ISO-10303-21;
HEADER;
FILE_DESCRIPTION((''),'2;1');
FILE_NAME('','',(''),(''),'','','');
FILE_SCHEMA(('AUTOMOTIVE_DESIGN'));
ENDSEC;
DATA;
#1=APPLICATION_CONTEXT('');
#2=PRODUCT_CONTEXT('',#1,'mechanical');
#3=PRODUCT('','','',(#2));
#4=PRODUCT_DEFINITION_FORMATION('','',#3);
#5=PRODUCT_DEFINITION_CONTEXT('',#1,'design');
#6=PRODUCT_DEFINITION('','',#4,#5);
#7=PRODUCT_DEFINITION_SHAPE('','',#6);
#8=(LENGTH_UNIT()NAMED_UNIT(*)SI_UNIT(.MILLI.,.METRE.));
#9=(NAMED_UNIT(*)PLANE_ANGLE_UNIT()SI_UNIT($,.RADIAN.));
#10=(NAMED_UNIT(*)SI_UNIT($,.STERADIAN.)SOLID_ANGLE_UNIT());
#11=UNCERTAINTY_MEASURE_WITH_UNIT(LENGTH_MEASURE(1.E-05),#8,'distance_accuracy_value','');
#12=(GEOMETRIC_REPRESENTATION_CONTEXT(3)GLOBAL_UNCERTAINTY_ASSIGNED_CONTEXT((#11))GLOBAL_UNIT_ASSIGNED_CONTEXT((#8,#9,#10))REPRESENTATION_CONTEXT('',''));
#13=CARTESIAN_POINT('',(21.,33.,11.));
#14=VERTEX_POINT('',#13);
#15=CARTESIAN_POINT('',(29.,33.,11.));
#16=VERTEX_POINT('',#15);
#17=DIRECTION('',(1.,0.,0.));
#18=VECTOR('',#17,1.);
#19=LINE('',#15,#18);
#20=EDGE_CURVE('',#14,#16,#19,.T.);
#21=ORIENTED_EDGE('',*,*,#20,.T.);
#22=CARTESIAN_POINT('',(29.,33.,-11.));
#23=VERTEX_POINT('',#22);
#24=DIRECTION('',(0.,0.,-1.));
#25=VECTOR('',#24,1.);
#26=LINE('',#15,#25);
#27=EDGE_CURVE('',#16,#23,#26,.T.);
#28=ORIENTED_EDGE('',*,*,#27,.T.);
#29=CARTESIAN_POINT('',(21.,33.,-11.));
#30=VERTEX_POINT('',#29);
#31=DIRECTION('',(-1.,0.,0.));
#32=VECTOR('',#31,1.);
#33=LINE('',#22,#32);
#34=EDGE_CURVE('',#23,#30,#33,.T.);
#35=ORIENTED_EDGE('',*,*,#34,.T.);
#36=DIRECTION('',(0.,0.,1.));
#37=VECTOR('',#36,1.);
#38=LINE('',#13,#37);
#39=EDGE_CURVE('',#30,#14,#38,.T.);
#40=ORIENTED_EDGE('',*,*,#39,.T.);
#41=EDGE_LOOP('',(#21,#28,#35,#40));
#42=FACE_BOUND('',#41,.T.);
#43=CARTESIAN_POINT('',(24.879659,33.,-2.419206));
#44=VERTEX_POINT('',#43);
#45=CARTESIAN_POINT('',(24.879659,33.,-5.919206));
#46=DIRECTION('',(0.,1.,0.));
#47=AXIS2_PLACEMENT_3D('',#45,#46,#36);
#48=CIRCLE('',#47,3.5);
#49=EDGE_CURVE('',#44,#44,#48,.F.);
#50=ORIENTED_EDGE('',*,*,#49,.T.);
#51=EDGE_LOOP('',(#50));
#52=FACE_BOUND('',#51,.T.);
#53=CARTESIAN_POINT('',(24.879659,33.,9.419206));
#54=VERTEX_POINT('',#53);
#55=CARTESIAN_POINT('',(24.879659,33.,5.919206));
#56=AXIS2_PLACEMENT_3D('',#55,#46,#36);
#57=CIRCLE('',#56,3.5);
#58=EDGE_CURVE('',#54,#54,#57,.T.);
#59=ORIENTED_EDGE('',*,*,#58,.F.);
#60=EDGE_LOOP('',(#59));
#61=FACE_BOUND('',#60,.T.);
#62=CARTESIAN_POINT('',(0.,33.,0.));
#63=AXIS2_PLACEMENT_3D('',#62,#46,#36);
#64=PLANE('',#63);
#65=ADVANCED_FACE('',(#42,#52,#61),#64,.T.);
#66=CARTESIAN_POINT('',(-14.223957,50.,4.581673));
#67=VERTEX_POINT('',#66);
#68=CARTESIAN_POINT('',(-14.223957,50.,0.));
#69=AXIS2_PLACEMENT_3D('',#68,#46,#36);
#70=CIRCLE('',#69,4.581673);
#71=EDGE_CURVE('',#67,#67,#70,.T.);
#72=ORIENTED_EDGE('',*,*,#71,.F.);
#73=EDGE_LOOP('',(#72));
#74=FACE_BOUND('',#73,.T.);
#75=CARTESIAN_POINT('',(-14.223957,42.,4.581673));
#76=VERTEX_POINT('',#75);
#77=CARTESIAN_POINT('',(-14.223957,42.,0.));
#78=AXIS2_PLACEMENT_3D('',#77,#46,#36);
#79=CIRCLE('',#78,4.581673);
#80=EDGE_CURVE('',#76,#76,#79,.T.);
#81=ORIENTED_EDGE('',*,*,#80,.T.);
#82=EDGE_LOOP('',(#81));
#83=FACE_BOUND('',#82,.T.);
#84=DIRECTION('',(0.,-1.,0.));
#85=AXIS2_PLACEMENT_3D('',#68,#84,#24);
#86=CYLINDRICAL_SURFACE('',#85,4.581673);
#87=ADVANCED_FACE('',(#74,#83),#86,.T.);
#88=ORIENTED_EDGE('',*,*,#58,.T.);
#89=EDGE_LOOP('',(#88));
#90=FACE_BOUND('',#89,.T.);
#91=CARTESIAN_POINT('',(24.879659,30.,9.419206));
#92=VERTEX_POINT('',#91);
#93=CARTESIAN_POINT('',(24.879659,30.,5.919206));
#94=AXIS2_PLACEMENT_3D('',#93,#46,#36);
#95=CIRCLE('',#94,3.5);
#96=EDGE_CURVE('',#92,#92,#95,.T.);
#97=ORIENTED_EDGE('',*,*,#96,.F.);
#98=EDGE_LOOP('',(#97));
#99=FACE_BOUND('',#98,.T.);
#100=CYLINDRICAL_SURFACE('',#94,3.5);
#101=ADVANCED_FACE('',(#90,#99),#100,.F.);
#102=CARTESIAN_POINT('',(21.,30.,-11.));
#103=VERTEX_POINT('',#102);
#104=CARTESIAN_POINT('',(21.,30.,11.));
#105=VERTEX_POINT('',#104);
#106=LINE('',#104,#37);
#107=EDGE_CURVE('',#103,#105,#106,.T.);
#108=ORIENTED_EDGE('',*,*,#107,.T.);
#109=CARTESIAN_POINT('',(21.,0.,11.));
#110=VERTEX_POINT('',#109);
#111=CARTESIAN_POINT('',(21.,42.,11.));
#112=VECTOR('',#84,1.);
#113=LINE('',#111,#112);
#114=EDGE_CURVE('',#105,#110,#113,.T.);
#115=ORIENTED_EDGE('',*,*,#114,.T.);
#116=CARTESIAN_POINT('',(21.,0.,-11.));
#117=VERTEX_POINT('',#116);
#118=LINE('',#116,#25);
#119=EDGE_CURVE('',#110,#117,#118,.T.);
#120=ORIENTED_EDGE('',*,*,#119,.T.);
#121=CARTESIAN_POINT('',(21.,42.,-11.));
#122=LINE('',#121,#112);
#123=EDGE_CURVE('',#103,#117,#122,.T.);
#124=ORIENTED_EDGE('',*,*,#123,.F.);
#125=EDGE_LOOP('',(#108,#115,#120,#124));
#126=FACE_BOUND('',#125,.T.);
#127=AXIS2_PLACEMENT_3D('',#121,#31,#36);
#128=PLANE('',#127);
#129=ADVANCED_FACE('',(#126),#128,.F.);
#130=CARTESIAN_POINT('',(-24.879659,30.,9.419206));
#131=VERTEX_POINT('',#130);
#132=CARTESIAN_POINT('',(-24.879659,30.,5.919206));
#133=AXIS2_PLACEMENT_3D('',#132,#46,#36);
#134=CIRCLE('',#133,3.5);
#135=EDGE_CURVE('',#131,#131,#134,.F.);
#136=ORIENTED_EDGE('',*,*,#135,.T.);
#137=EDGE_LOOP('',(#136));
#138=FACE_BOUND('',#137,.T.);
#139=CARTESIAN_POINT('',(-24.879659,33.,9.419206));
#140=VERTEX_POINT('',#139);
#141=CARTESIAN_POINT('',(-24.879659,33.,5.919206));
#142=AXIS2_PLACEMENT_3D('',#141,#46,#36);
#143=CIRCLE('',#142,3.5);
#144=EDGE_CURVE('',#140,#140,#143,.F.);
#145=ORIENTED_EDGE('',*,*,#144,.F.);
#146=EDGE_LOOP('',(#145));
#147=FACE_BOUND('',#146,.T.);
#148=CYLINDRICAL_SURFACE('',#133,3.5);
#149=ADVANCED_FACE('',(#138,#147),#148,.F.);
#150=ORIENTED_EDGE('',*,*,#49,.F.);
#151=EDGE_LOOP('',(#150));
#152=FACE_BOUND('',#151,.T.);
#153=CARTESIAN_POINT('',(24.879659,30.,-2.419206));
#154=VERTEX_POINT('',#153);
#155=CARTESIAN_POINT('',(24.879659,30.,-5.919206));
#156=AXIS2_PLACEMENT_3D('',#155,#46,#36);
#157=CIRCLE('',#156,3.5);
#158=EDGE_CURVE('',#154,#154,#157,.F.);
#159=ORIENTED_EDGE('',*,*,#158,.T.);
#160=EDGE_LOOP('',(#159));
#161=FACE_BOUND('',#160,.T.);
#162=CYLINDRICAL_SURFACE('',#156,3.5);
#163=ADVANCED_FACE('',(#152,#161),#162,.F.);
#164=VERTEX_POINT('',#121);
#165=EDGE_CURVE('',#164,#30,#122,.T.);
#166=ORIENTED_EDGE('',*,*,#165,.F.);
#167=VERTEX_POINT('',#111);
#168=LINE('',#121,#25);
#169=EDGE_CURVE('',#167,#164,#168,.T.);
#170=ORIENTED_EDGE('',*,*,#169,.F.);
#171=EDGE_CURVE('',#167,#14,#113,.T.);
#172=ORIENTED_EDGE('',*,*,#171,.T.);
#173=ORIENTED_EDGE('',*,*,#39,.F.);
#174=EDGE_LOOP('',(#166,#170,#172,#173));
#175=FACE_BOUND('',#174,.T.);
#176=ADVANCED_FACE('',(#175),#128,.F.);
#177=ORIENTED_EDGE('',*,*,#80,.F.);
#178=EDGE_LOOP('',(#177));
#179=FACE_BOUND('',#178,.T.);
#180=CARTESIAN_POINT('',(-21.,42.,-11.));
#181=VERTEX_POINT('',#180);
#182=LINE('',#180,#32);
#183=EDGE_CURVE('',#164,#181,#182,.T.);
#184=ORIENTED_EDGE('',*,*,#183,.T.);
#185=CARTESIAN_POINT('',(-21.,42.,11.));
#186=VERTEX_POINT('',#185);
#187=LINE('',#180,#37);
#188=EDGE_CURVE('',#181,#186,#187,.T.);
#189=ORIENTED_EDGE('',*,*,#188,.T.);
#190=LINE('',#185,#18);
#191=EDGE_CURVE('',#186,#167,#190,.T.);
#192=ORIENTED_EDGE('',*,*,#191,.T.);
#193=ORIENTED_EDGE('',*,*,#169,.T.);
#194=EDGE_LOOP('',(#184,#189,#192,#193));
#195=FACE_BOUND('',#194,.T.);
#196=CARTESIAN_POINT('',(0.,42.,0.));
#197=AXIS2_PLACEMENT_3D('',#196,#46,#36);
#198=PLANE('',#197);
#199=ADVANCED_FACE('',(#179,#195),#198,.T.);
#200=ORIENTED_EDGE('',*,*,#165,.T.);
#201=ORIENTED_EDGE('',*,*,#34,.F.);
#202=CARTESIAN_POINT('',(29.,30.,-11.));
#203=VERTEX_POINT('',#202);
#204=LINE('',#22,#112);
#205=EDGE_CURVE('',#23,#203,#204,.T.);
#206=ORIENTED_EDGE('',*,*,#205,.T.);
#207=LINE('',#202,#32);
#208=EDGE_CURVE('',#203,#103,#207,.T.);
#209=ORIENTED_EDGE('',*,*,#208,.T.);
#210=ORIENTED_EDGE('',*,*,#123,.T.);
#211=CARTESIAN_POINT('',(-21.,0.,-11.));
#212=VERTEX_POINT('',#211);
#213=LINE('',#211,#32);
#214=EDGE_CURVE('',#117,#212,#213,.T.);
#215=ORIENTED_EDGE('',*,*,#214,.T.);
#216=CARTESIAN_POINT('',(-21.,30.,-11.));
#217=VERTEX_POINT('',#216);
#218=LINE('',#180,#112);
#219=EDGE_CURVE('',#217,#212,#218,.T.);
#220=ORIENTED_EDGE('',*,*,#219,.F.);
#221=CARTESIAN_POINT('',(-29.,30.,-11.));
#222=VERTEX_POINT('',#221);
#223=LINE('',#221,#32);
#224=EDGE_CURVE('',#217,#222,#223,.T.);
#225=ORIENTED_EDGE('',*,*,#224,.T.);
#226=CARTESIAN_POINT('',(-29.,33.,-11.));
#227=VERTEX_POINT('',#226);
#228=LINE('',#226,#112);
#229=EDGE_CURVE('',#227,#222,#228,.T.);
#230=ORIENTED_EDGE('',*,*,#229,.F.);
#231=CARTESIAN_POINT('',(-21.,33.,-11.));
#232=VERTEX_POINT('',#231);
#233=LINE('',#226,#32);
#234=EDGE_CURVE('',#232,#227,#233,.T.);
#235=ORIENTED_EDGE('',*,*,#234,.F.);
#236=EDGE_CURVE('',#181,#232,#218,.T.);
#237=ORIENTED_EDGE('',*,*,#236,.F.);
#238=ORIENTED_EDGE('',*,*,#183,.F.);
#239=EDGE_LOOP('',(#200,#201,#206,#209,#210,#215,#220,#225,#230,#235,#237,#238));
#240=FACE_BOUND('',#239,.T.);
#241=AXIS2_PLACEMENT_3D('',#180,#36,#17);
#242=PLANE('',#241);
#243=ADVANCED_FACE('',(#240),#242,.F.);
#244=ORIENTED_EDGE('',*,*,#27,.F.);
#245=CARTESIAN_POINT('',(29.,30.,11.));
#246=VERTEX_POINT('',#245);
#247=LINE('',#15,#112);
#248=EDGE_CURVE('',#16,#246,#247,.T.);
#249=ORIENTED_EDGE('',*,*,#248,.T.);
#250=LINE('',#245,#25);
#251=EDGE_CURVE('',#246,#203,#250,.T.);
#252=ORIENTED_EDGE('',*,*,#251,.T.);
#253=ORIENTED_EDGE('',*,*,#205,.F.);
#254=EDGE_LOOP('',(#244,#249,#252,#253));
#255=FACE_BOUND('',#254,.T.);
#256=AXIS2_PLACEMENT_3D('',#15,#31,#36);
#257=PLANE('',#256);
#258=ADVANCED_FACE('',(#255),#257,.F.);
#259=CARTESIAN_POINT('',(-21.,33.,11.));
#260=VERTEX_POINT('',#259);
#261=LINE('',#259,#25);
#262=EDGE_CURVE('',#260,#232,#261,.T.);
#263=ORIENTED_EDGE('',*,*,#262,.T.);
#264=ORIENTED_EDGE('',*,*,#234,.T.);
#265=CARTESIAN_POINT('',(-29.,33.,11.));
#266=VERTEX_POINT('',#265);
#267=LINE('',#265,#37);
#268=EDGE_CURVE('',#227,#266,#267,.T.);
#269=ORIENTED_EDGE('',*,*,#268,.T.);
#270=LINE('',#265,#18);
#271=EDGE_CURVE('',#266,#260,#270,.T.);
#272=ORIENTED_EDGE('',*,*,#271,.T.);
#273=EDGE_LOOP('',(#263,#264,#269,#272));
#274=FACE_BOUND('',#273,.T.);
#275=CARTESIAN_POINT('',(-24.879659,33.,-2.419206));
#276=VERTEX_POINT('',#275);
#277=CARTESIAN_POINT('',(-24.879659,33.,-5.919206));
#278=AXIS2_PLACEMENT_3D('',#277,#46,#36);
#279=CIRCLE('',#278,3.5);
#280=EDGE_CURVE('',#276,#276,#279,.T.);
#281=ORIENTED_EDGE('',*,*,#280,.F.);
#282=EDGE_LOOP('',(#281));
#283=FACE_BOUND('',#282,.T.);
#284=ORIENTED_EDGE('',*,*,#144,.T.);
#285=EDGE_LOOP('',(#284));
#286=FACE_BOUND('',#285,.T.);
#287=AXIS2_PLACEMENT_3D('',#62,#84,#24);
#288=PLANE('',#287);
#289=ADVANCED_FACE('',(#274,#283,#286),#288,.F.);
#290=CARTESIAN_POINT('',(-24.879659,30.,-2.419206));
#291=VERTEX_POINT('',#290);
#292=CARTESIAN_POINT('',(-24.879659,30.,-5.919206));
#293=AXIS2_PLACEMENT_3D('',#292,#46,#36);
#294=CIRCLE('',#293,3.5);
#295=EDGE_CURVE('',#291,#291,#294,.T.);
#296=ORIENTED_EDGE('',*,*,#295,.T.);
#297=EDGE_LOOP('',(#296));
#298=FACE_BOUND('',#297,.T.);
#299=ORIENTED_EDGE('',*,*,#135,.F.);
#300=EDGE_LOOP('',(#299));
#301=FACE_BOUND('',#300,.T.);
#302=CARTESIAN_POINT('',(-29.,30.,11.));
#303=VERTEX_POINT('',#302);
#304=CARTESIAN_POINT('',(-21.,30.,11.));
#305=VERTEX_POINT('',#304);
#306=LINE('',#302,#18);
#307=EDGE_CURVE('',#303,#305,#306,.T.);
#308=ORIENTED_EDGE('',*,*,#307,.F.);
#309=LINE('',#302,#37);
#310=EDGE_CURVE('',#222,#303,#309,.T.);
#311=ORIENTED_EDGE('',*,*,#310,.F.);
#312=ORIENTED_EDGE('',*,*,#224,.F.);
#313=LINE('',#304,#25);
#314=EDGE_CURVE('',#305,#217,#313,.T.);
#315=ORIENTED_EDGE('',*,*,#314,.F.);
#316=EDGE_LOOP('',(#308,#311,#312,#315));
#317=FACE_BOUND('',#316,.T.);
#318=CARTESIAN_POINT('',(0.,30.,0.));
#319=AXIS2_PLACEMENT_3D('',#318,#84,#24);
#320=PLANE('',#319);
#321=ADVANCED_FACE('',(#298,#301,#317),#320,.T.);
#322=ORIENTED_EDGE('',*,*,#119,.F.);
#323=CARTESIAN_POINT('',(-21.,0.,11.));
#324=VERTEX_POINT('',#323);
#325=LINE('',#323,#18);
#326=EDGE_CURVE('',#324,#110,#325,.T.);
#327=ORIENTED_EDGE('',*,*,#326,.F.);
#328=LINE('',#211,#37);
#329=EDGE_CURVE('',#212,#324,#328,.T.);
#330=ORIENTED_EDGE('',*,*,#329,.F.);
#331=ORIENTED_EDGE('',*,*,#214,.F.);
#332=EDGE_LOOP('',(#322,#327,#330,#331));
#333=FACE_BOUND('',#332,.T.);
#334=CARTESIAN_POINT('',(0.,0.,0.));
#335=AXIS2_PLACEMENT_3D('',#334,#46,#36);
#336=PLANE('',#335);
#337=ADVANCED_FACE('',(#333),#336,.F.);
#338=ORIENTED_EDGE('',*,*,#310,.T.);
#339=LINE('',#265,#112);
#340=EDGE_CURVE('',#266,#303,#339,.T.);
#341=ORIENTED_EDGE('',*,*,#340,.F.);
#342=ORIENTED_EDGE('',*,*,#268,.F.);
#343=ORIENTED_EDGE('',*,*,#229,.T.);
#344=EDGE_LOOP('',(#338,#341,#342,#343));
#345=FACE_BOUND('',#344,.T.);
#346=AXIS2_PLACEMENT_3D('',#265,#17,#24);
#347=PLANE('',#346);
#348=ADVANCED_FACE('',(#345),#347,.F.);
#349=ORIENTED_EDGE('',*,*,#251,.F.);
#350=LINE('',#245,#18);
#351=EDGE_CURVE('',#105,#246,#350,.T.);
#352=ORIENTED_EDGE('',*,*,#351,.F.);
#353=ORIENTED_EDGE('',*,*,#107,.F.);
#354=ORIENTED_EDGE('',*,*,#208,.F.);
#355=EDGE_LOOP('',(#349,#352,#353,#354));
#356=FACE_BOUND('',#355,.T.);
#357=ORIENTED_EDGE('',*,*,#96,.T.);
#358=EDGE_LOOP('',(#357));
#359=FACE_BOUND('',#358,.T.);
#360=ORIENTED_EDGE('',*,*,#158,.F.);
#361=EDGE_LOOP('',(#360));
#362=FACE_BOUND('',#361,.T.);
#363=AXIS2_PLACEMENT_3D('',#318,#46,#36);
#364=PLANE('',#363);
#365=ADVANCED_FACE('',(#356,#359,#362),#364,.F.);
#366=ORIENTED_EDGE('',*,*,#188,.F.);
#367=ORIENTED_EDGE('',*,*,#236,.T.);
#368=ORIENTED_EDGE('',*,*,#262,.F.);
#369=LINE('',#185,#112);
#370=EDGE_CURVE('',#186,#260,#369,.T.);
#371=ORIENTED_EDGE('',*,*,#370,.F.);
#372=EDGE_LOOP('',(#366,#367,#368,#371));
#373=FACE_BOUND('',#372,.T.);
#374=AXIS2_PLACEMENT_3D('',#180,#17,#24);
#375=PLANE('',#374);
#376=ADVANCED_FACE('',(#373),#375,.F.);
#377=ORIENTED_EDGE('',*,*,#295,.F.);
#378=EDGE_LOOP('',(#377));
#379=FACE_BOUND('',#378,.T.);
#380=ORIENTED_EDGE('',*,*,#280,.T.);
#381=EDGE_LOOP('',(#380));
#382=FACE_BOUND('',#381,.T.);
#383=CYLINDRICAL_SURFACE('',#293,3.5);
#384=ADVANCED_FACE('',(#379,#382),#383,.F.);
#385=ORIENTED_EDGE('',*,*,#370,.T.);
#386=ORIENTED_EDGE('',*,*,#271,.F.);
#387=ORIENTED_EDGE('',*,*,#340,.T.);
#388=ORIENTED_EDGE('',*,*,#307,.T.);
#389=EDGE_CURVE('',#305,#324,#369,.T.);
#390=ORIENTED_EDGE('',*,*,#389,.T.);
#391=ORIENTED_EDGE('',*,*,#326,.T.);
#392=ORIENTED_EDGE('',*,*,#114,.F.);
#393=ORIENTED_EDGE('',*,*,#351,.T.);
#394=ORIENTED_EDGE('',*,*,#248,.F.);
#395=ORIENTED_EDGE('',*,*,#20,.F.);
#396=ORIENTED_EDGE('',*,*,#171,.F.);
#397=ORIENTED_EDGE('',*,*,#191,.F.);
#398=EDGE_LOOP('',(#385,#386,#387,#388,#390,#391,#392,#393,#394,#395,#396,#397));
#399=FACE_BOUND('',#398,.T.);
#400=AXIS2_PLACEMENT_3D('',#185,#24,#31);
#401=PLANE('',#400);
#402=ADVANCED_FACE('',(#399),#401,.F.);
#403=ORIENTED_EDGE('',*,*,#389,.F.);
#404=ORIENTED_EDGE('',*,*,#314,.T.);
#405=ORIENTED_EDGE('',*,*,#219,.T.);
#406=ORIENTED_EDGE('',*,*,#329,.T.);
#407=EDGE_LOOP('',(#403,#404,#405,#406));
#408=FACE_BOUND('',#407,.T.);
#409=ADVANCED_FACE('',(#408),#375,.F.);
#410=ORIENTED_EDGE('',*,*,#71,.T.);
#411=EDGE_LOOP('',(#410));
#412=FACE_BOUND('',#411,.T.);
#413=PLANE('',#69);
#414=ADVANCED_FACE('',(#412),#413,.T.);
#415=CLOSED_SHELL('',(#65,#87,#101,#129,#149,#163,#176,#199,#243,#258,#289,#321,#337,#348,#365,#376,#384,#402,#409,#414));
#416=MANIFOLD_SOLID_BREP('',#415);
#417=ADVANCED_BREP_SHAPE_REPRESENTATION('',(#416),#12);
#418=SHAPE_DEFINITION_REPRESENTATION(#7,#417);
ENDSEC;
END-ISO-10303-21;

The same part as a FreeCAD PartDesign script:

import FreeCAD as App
import Part
import Sketcher

V = App.Vector

doc = App.newDocument("Part")
body = doc.addObject("PartDesign::Body", "Body")

# Sketch on XZ plane
sketch1 = body.newObject("Sketcher::SketchObject", "Sketch")
sketch1.AttachmentSupport = (doc.getObject("XZ_Plane"), [""])
sketch1.MapMode = "FlatFace"
sketch1.addGeometry([
    Part.LineSegment(V(-21, -11, 0), V(-21, 11, 0)),
    Part.LineSegment(V(-21, 11, 0), V(21, 11, 0)),
    Part.LineSegment(V(21, 11, 0), V(21, -11, 0)),
    Part.LineSegment(V(21, -11, 0), V(-21, -11, 0)),
], False)
sketch1.addConstraint([
    Sketcher.Constraint("Coincident", 0, 2, 1, 1),
    Sketcher.Constraint("Coincident", 1, 2, 2, 1),
    Sketcher.Constraint("Coincident", 2, 2, 3, 1),
    Sketcher.Constraint("Coincident", 3, 2, 0, 1),
    Sketcher.Constraint("Vertical", 0),
    Sketcher.Constraint("Horizontal", 1),
    Sketcher.Constraint("Vertical", 2),
    Sketcher.Constraint("Horizontal", 3),
    Sketcher.Constraint("Symmetric", 0, 2, 2, 2, -1, 1),
    Sketcher.Constraint("DistanceX", 1, 1, 1, 2, 42.0),
    Sketcher.Constraint("DistanceY", 0, 1, 0, 2, 22.0),
])
pad1 = body.newObject("PartDesign::Pad", "Pad")
pad1.Profile = sketch1
pad1.Length = 42
pad1.Reversed = True

# Sketch on XZ plane
sketch2 = body.newObject("Sketcher::SketchObject", "Sketch001")
sketch2.AttachmentSupport = (doc.getObject("XZ_Plane"), [""])
sketch2.MapMode = "FlatFace"
sketch2.AttachmentOffset = App.Placement(V(0, 0, -30), App.Rotation())
sketch2.addGeometry([
    Part.LineSegment(V(-29, -11, 0), V(-29, 11, 0)),  # 0
    Part.LineSegment(V(-29, 11, 0), V(-21, 11, 0)),  # 1
    Part.LineSegment(V(-21, 11, 0), V(-21, -11, 0)),  # 2
    Part.LineSegment(V(-21, -11, 0), V(-29, -11, 0)),  # 3
    Part.LineSegment(V(21, -11, 0), V(21, 11, 0)),  # 4
    Part.LineSegment(V(21, 11, 0), V(29, 11, 0)),  # 5
    Part.LineSegment(V(29, 11, 0), V(29, -11, 0)),  # 6
    Part.LineSegment(V(29, -11, 0), V(21, -11, 0)),  # 7
], False)
sketch2.addConstraint([
    Sketcher.Constraint("Coincident", 0, 2, 1, 1),
    Sketcher.Constraint("Coincident", 1, 2, 2, 1),
    Sketcher.Constraint("Coincident", 2, 2, 3, 1),
    Sketcher.Constraint("Coincident", 3, 2, 0, 1),
    Sketcher.Constraint("Coincident", 4, 2, 5, 1),
    Sketcher.Constraint("Coincident", 5, 2, 6, 1),
    Sketcher.Constraint("Coincident", 6, 2, 7, 1),
    Sketcher.Constraint("Coincident", 7, 2, 4, 1),
    Sketcher.Constraint("Vertical", 0),
    Sketcher.Constraint("Horizontal", 1),
    Sketcher.Constraint("Vertical", 2),
    Sketcher.Constraint("Horizontal", 3),
    Sketcher.Constraint("Vertical", 4),
    Sketcher.Constraint("Horizontal", 5),
    Sketcher.Constraint("Vertical", 6),
    Sketcher.Constraint("Horizontal", 7),
    Sketcher.Constraint("Symmetric", 2, 2, 4, 2, -1, 1),
    Sketcher.Constraint("Symmetric", 0, 2, 6, 2, -1, 1),
    Sketcher.Constraint("Horizontal", 1, 2, 4, 2),
    Sketcher.Constraint("DistanceX", 1, 1, 1, 2, 8.0),
    Sketcher.Constraint("DistanceY", 0, 1, 0, 2, 22.0),
    Sketcher.Constraint("DistanceX", 0, 2, -1, 1, 29.0),
])
pad2 = body.newObject("PartDesign::Pad", "Pad001")
pad2.Profile = sketch2
pad2.Length = 3
pad2.Reversed = True

# Sketch on XZ plane
sketch3 = body.newObject("Sketcher::SketchObject", "Sketch002")
sketch3.AttachmentSupport = (doc.getObject("XZ_Plane"), [""])
sketch3.MapMode = "FlatFace"
sketch3.AttachmentOffset = App.Placement(V(0, 0, -33), App.Rotation())
sketch3.addGeometry([
    Part.Circle(V(-24.879659, 5.919206, 0), V(0, 0, 1), 3.5),
    Part.Circle(V(-24.879659, -5.919206, 0), V(0, 0, 1), 3.5),
    Part.Circle(V(24.879659, -5.919206, 0), V(0, 0, 1), 3.5),
    Part.Circle(V(24.879659, 5.919206, 0), V(0, 0, 1), 3.5),
], False)
sketch3.addConstraint([
    Sketcher.Constraint("Equal", 0, 1),
    Sketcher.Constraint("Equal", 1, 2),
    Sketcher.Constraint("Equal", 2, 3),
    Sketcher.Constraint("Symmetric", 0, 3, 2, 3, -1, 1),
    Sketcher.Constraint("Symmetric", 1, 3, 3, 3, -1, 1),
    Sketcher.Constraint("Symmetric", 1, 3, 2, 3, -2),
    Sketcher.Constraint("Diameter", 0, 7.0),
    Sketcher.Constraint("DistanceX", 0, 3, -1, 1, 24.879659),
    Sketcher.Constraint("DistanceY", -1, 1, 0, 3, 5.919206),
])
pocket1 = body.newObject("PartDesign::Pocket", "Pocket")
pocket1.Profile = sketch3
pocket1.Length = 3
pocket1.Reversed = True

# Sketch on XZ plane
sketch4 = body.newObject("Sketcher::SketchObject", "Sketch003")
sketch4.AttachmentSupport = (doc.getObject("XZ_Plane"), [""])
sketch4.MapMode = "FlatFace"
sketch4.AttachmentOffset = App.Placement(V(0, 0, -42), App.Rotation())
sketch4.addGeometry(Part.Circle(V(-14.223957, 0, 0), V(0, 0, 1), 4.581673), False)
sketch4.addConstraint([
    Sketcher.Constraint("PointOnObject", 0, 3, -1),
    Sketcher.Constraint("Diameter", 0, 9.163346),
    Sketcher.Constraint("DistanceX", 0, 3, -1, 1, 14.223957),
])
pad3 = body.newObject("PartDesign::Pad", "Pad002")
pad3.Profile = sketch4
pad3.Length = 8
pad3.Reversed = True

doc.recompute()
